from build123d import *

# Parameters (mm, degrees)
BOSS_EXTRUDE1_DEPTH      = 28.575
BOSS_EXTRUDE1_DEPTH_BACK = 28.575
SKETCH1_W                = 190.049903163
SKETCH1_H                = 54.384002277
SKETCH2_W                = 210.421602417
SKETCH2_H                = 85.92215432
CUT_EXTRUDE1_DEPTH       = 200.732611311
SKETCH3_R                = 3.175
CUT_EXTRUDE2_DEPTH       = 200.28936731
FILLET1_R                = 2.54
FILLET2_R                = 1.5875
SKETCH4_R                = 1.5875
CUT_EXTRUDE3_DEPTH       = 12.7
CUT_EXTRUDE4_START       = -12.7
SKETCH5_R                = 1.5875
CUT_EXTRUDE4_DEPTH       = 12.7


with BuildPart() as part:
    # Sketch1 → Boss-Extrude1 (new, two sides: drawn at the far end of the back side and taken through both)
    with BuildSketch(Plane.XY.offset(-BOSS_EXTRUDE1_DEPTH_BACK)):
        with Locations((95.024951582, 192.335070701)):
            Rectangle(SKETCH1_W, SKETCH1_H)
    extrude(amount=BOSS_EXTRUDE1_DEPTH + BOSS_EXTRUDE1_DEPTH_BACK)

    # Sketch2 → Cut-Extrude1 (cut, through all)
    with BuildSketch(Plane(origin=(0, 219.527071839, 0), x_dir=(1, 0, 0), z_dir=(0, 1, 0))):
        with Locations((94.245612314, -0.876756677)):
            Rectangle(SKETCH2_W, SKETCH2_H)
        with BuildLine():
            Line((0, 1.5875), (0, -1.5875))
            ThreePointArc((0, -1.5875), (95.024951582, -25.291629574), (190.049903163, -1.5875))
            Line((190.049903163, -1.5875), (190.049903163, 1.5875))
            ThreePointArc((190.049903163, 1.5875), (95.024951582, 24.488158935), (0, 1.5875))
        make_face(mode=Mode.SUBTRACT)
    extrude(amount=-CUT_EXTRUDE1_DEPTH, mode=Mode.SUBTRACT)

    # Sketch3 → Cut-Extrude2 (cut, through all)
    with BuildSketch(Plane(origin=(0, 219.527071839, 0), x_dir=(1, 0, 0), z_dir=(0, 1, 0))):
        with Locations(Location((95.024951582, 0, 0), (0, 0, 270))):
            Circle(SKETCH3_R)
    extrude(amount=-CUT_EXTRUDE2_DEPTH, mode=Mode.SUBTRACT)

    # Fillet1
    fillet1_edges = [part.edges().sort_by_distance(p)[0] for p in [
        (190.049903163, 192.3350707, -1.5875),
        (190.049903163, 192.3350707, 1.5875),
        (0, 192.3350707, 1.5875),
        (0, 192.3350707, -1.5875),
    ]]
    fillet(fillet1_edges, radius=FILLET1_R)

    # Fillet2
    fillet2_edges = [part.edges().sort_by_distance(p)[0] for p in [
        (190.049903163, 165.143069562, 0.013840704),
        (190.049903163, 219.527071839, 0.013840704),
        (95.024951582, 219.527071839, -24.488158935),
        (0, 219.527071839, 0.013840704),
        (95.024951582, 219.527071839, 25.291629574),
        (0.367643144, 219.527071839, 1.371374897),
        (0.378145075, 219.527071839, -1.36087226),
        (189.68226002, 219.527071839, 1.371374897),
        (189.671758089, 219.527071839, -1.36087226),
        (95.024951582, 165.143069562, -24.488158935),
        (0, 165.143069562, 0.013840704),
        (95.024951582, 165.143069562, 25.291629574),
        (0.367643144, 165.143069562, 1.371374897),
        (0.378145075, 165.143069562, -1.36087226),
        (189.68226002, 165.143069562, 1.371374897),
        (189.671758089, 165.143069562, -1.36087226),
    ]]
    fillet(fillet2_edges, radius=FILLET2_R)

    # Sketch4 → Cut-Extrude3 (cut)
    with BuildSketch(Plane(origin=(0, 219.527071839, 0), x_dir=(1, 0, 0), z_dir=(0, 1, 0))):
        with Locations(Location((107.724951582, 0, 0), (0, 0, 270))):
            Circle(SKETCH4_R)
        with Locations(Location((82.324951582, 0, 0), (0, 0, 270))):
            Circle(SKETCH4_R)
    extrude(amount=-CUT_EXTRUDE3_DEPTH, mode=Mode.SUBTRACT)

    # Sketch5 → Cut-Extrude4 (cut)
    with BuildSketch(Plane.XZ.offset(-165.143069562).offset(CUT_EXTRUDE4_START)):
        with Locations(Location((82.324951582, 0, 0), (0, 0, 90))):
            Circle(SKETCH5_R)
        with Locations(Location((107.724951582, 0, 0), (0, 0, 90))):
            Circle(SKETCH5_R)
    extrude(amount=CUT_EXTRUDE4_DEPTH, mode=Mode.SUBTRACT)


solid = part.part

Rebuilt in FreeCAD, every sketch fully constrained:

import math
import FreeCAD as App
import Part
import Sketcher

V = App.Vector
Q = App.Units.Quantity


def edges_at(feature, points):
    """Names of the edges that pass closest to the given points."""
    edges = feature.Shape.Edges
    near = lambda p: min(range(len(edges)), key=lambda i: edges[i].distToShape(Part.Vertex(*p))[0])
    return sorted({f"Edge{near(p) + 1}" for p in points})

doc = App.newDocument("Part")
body = doc.addObject("PartDesign::Body", "Body")

# Sketch on XY plane
sketch1 = body.newObject("Sketcher::SketchObject", "Sketch")
sketch1.AttachmentSupport = (doc.getObject("XY_Plane"), [""])
sketch1.MapMode = "FlatFace"
sketch1.addGeometry([
    Part.LineSegment(V(0, 220, 0), V(0, 165, 0)),
    Part.LineSegment(V(0, 165, 0), V(190, 165, 0)),
    Part.LineSegment(V(190, 165, 0), V(190, 220, 0)),
    Part.LineSegment(V(190, 220, 0), V(0, 220, 0)),
], False)
sketch1.addConstraint([
    Sketcher.Constraint("Coincident", 0, 2, 1, 1),
    Sketcher.Constraint("Coincident", 1, 2, 2, 1),
    Sketcher.Constraint("Coincident", 2, 2, 3, 1),
    Sketcher.Constraint("Coincident", 3, 2, 0, 1),
    Sketcher.Constraint("Vertical", 0),
    Sketcher.Constraint("Horizontal", 1),
    Sketcher.Constraint("Vertical", 2),
    Sketcher.Constraint("Horizontal", 3),
    Sketcher.Constraint("PointOnObject", 0, 2, -2),
    Sketcher.Constraint("DistanceX", 1, 1, 1, 2, Q("190.049903 mm")),
    Sketcher.Constraint("DistanceY", 0, 2, 0, 1, Q("54.384002 mm")),
    Sketcher.Constraint("DistanceY", -1, 1, 0, 2, Q("165.14307 mm")),
])
pad1 = body.newObject("PartDesign::Pad", "Pad")
pad1.Profile = sketch1
pad1.Type = "TwoLengths"
pad1.Length = Q("1.125 in")
pad1.Length2 = Q("1.125 in")

# Sketch on XZ plane
sketch2 = body.newObject("Sketcher::SketchObject", "Sketch001")
sketch2.AttachmentSupport = (doc.getObject("XZ_Plane"), [""])
sketch2.MapMode = "FlatFace"
sketch2.AttachmentOffset = App.Placement(V(0, 0, -219.527072), App.Rotation())
sketch2.addGeometry([
    Part.LineSegment(V(-11, -42.1, 0), V(-11, 43.8, 0)),  # 0
    Part.LineSegment(V(-11, 43.8, 0), V(199.5, 43.8, 0)),  # 1
    Part.LineSegment(V(199.5, 43.8, 0), V(199.5, -42.1, 0)),  # 2
    Part.LineSegment(V(199.5, -42.1, 0), V(-11, -42.1, 0)),  # 3
    Part.LineSegment(V(0, 1.6, 0), V(0, -1.6, 0)),  # 4
    Part.ArcOfCircle(Part.Circle(V(95, 184.1, 0), V(0, 0, 1), 208.6), math.radians(-117), math.radians(-63)),  # 5
    Part.LineSegment(V(190, -1.6, 0), V(190, 1.6, 0)),  # 6
    Part.ArcOfCircle(Part.Circle(V(95, -177, 0), V(0, 0, 1), 202.3), math.radians(62), math.radians(118)),  # 7
], False)
sketch2.addConstraint([
    Sketcher.Constraint("Coincident", 0, 2, 1, 1),
    Sketcher.Constraint("Coincident", 1, 2, 2, 1),
    Sketcher.Constraint("Coincident", 2, 2, 3, 1),
    Sketcher.Constraint("Coincident", 3, 2, 0, 1),
    Sketcher.Constraint("Coincident", 4, 2, 5, 1),
    Sketcher.Constraint("Coincident", 5, 2, 6, 1),
    Sketcher.Constraint("Coincident", 6, 2, 7, 1),
    Sketcher.Constraint("Coincident", 7, 2, 4, 1),
    Sketcher.Constraint("Vertical", 0),
    Sketcher.Constraint("Horizontal", 1),
    Sketcher.Constraint("Vertical", 2),
    Sketcher.Constraint("Horizontal", 3),
    Sketcher.Constraint("Vertical", 4),
    Sketcher.Constraint("Vertical", 6),
    Sketcher.Constraint("Symmetric", 4, 2, 7, 2, -1, 1),
    Sketcher.Constraint("Horizontal", 4, 2, 5, 2),
    Sketcher.Constraint("Horizontal", 6, 2, 7, 2),
    Sketcher.Constraint("DistanceY", 4, 2, 4, 1, Q("0.125 in")),
    Sketcher.Constraint("Radius", 7, Q("202.319751 mm")),
    Sketcher.Constraint("Radius", 5, Q("208.600583 mm")),
    Sketcher.Constraint("DistanceY", 7, 3, 2, 2, Q("134.943801 mm")),
    Sketcher.Constraint("DistanceX", 1, 1, 1, 2, Q("210.421602 mm")),
    Sketcher.Constraint("DistanceY", 0, 1, 0, 2, Q("85.922154 mm")),
    Sketcher.Constraint("DistanceX", -1, 1, 5, 3, Q("95.024952 mm")),
    Sketcher.Constraint("DistanceX", 0, 2, -1, 1, Q("10.965189 mm")),
])
pocket1 = body.newObject("PartDesign::Pocket", "Pocket")
pocket1.Profile = sketch2
pocket1.Type = "ThroughAll"
pocket1.Reversed = True

# Sketch on XZ plane
sketch3 = body.newObject("Sketcher::SketchObject", "Sketch002")
sketch3.AttachmentSupport = (doc.getObject("XZ_Plane"), [""])
sketch3.MapMode = "FlatFace"
sketch3.AttachmentOffset = App.Placement(V(0, 0, -219.527072), App.Rotation())
sketch3.addGeometry(Part.Circle(V(95, 0, 0), V(0, 0, 1), 3.2), False)
sketch3.addConstraint([
    Sketcher.Constraint("PointOnObject", 0, 3, -1),
    Sketcher.Constraint("Diameter", 0, Q("0.25 in")),
    Sketcher.Constraint("DistanceX", -1, 1, 0, 3, Q("95.024952 mm")),
])
pocket2 = body.newObject("PartDesign::Pocket", "Pocket001")
pocket2.Profile = sketch3
pocket2.Type = "ThroughAll"
pocket2.Reversed = True
doc.recompute()

fillet = body.newObject("PartDesign::Fillet", "Fillet")
fillet.Base = (pocket2, edges_at(pocket2, [
    (190.05, 192.335, -1.587),
    (190.05, 192.335, 1.587),
    (0, 192.335, 1.587),
    (0, 192.335, -1.587),
]))
fillet.Radius = Q("0.1 in")
doc.recompute()

fillet2 = body.newObject("PartDesign::Fillet", "Fillet001")
fillet2.Base = (fillet, edges_at(fillet, [
    (190.05, 165.143, 0.014),
    (190.05, 219.527, 0.014),
    (95.025, 219.527, -24.488),
    (0, 219.527, 0.014),
    (95.025, 219.527, 25.292),
    (0.368, 219.527, 1.371),
    (0.378, 219.527, -1.361),
    (189.682, 219.527, 1.371),
    (189.672, 219.527, -1.361),
    (95.025, 165.143, -24.488),
    (0, 165.143, 0.014),
    (95.025, 165.143, 25.292),
    (0.368, 165.143, 1.371),
    (0.378, 165.143, -1.361),
    (189.682, 165.143, 1.371),
    (189.672, 165.143, -1.361),
]))
fillet2.Radius = Q("0.0625 in")

# Sketch on XZ plane
sketch4 = body.newObject("Sketcher::SketchObject", "Sketch003")
sketch4.AttachmentSupport = (doc.getObject("XZ_Plane"), [""])
sketch4.MapMode = "FlatFace"
sketch4.AttachmentOffset = App.Placement(V(0, 0, -219.527072), App.Rotation())
sketch4.addGeometry([
    Part.Circle(V(107.7, 0, 0), V(0, 0, 1), 1.6),
    Part.Circle(V(82.3, 0, 0), V(0, 0, 1), 1.6),
], False)
sketch4.addConstraint([
    Sketcher.Constraint("Equal", 0, 1),
    Sketcher.Constraint("PointOnObject", 0, 3, -1),
    Sketcher.Constraint("PointOnObject", 1, 3, -1),
    Sketcher.Constraint("Diameter", 0, Q("0.125 in")),
    Sketcher.Constraint("DistanceX", 1, 3, 0, 3, Q("1 in")),
    Sketcher.Constraint("DistanceX", -1, 1, 0, 3, Q("107.724952 mm")),
])
pocket3 = body.newObject("PartDesign::Pocket", "Pocket002")
pocket3.Profile = sketch4
pocket3.Length = Q("0.5 in")
pocket3.Reversed = True

# Sketch on XZ plane
sketch5 = body.newObject("Sketcher::SketchObject", "Sketch004")
sketch5.AttachmentSupport = (doc.getObject("XZ_Plane"), [""])
sketch5.MapMode = "FlatFace"
sketch5.AttachmentOffset = App.Placement(V(0, 0, -177.84307), App.Rotation())
sketch5.addGeometry([
    Part.Circle(V(82.3, 0, 0), V(0, 0, 1), 1.6),
    Part.Circle(V(107.7, 0, 0), V(0, 0, 1), 1.6),
], False)
sketch5.addConstraint([
    Sketcher.Constraint("Equal", 0, 1),
    Sketcher.Constraint("PointOnObject", 0, 3, -1),
    Sketcher.Constraint("PointOnObject", 1, 3, -1),
    Sketcher.Constraint("Diameter", 0, Q("0.125 in")),
    Sketcher.Constraint("DistanceX", 0, 3, 1, 3, Q("1 in")),
    Sketcher.Constraint("DistanceX", -1, 1, 0, 3, Q("82.324952 mm")),
])
pocket4 = body.newObject("PartDesign::Pocket", "Pocket003")
pocket4.Profile = sketch5
pocket4.Length = Q("0.5 in")
pocket4.Reversed = True

doc.recompute()
